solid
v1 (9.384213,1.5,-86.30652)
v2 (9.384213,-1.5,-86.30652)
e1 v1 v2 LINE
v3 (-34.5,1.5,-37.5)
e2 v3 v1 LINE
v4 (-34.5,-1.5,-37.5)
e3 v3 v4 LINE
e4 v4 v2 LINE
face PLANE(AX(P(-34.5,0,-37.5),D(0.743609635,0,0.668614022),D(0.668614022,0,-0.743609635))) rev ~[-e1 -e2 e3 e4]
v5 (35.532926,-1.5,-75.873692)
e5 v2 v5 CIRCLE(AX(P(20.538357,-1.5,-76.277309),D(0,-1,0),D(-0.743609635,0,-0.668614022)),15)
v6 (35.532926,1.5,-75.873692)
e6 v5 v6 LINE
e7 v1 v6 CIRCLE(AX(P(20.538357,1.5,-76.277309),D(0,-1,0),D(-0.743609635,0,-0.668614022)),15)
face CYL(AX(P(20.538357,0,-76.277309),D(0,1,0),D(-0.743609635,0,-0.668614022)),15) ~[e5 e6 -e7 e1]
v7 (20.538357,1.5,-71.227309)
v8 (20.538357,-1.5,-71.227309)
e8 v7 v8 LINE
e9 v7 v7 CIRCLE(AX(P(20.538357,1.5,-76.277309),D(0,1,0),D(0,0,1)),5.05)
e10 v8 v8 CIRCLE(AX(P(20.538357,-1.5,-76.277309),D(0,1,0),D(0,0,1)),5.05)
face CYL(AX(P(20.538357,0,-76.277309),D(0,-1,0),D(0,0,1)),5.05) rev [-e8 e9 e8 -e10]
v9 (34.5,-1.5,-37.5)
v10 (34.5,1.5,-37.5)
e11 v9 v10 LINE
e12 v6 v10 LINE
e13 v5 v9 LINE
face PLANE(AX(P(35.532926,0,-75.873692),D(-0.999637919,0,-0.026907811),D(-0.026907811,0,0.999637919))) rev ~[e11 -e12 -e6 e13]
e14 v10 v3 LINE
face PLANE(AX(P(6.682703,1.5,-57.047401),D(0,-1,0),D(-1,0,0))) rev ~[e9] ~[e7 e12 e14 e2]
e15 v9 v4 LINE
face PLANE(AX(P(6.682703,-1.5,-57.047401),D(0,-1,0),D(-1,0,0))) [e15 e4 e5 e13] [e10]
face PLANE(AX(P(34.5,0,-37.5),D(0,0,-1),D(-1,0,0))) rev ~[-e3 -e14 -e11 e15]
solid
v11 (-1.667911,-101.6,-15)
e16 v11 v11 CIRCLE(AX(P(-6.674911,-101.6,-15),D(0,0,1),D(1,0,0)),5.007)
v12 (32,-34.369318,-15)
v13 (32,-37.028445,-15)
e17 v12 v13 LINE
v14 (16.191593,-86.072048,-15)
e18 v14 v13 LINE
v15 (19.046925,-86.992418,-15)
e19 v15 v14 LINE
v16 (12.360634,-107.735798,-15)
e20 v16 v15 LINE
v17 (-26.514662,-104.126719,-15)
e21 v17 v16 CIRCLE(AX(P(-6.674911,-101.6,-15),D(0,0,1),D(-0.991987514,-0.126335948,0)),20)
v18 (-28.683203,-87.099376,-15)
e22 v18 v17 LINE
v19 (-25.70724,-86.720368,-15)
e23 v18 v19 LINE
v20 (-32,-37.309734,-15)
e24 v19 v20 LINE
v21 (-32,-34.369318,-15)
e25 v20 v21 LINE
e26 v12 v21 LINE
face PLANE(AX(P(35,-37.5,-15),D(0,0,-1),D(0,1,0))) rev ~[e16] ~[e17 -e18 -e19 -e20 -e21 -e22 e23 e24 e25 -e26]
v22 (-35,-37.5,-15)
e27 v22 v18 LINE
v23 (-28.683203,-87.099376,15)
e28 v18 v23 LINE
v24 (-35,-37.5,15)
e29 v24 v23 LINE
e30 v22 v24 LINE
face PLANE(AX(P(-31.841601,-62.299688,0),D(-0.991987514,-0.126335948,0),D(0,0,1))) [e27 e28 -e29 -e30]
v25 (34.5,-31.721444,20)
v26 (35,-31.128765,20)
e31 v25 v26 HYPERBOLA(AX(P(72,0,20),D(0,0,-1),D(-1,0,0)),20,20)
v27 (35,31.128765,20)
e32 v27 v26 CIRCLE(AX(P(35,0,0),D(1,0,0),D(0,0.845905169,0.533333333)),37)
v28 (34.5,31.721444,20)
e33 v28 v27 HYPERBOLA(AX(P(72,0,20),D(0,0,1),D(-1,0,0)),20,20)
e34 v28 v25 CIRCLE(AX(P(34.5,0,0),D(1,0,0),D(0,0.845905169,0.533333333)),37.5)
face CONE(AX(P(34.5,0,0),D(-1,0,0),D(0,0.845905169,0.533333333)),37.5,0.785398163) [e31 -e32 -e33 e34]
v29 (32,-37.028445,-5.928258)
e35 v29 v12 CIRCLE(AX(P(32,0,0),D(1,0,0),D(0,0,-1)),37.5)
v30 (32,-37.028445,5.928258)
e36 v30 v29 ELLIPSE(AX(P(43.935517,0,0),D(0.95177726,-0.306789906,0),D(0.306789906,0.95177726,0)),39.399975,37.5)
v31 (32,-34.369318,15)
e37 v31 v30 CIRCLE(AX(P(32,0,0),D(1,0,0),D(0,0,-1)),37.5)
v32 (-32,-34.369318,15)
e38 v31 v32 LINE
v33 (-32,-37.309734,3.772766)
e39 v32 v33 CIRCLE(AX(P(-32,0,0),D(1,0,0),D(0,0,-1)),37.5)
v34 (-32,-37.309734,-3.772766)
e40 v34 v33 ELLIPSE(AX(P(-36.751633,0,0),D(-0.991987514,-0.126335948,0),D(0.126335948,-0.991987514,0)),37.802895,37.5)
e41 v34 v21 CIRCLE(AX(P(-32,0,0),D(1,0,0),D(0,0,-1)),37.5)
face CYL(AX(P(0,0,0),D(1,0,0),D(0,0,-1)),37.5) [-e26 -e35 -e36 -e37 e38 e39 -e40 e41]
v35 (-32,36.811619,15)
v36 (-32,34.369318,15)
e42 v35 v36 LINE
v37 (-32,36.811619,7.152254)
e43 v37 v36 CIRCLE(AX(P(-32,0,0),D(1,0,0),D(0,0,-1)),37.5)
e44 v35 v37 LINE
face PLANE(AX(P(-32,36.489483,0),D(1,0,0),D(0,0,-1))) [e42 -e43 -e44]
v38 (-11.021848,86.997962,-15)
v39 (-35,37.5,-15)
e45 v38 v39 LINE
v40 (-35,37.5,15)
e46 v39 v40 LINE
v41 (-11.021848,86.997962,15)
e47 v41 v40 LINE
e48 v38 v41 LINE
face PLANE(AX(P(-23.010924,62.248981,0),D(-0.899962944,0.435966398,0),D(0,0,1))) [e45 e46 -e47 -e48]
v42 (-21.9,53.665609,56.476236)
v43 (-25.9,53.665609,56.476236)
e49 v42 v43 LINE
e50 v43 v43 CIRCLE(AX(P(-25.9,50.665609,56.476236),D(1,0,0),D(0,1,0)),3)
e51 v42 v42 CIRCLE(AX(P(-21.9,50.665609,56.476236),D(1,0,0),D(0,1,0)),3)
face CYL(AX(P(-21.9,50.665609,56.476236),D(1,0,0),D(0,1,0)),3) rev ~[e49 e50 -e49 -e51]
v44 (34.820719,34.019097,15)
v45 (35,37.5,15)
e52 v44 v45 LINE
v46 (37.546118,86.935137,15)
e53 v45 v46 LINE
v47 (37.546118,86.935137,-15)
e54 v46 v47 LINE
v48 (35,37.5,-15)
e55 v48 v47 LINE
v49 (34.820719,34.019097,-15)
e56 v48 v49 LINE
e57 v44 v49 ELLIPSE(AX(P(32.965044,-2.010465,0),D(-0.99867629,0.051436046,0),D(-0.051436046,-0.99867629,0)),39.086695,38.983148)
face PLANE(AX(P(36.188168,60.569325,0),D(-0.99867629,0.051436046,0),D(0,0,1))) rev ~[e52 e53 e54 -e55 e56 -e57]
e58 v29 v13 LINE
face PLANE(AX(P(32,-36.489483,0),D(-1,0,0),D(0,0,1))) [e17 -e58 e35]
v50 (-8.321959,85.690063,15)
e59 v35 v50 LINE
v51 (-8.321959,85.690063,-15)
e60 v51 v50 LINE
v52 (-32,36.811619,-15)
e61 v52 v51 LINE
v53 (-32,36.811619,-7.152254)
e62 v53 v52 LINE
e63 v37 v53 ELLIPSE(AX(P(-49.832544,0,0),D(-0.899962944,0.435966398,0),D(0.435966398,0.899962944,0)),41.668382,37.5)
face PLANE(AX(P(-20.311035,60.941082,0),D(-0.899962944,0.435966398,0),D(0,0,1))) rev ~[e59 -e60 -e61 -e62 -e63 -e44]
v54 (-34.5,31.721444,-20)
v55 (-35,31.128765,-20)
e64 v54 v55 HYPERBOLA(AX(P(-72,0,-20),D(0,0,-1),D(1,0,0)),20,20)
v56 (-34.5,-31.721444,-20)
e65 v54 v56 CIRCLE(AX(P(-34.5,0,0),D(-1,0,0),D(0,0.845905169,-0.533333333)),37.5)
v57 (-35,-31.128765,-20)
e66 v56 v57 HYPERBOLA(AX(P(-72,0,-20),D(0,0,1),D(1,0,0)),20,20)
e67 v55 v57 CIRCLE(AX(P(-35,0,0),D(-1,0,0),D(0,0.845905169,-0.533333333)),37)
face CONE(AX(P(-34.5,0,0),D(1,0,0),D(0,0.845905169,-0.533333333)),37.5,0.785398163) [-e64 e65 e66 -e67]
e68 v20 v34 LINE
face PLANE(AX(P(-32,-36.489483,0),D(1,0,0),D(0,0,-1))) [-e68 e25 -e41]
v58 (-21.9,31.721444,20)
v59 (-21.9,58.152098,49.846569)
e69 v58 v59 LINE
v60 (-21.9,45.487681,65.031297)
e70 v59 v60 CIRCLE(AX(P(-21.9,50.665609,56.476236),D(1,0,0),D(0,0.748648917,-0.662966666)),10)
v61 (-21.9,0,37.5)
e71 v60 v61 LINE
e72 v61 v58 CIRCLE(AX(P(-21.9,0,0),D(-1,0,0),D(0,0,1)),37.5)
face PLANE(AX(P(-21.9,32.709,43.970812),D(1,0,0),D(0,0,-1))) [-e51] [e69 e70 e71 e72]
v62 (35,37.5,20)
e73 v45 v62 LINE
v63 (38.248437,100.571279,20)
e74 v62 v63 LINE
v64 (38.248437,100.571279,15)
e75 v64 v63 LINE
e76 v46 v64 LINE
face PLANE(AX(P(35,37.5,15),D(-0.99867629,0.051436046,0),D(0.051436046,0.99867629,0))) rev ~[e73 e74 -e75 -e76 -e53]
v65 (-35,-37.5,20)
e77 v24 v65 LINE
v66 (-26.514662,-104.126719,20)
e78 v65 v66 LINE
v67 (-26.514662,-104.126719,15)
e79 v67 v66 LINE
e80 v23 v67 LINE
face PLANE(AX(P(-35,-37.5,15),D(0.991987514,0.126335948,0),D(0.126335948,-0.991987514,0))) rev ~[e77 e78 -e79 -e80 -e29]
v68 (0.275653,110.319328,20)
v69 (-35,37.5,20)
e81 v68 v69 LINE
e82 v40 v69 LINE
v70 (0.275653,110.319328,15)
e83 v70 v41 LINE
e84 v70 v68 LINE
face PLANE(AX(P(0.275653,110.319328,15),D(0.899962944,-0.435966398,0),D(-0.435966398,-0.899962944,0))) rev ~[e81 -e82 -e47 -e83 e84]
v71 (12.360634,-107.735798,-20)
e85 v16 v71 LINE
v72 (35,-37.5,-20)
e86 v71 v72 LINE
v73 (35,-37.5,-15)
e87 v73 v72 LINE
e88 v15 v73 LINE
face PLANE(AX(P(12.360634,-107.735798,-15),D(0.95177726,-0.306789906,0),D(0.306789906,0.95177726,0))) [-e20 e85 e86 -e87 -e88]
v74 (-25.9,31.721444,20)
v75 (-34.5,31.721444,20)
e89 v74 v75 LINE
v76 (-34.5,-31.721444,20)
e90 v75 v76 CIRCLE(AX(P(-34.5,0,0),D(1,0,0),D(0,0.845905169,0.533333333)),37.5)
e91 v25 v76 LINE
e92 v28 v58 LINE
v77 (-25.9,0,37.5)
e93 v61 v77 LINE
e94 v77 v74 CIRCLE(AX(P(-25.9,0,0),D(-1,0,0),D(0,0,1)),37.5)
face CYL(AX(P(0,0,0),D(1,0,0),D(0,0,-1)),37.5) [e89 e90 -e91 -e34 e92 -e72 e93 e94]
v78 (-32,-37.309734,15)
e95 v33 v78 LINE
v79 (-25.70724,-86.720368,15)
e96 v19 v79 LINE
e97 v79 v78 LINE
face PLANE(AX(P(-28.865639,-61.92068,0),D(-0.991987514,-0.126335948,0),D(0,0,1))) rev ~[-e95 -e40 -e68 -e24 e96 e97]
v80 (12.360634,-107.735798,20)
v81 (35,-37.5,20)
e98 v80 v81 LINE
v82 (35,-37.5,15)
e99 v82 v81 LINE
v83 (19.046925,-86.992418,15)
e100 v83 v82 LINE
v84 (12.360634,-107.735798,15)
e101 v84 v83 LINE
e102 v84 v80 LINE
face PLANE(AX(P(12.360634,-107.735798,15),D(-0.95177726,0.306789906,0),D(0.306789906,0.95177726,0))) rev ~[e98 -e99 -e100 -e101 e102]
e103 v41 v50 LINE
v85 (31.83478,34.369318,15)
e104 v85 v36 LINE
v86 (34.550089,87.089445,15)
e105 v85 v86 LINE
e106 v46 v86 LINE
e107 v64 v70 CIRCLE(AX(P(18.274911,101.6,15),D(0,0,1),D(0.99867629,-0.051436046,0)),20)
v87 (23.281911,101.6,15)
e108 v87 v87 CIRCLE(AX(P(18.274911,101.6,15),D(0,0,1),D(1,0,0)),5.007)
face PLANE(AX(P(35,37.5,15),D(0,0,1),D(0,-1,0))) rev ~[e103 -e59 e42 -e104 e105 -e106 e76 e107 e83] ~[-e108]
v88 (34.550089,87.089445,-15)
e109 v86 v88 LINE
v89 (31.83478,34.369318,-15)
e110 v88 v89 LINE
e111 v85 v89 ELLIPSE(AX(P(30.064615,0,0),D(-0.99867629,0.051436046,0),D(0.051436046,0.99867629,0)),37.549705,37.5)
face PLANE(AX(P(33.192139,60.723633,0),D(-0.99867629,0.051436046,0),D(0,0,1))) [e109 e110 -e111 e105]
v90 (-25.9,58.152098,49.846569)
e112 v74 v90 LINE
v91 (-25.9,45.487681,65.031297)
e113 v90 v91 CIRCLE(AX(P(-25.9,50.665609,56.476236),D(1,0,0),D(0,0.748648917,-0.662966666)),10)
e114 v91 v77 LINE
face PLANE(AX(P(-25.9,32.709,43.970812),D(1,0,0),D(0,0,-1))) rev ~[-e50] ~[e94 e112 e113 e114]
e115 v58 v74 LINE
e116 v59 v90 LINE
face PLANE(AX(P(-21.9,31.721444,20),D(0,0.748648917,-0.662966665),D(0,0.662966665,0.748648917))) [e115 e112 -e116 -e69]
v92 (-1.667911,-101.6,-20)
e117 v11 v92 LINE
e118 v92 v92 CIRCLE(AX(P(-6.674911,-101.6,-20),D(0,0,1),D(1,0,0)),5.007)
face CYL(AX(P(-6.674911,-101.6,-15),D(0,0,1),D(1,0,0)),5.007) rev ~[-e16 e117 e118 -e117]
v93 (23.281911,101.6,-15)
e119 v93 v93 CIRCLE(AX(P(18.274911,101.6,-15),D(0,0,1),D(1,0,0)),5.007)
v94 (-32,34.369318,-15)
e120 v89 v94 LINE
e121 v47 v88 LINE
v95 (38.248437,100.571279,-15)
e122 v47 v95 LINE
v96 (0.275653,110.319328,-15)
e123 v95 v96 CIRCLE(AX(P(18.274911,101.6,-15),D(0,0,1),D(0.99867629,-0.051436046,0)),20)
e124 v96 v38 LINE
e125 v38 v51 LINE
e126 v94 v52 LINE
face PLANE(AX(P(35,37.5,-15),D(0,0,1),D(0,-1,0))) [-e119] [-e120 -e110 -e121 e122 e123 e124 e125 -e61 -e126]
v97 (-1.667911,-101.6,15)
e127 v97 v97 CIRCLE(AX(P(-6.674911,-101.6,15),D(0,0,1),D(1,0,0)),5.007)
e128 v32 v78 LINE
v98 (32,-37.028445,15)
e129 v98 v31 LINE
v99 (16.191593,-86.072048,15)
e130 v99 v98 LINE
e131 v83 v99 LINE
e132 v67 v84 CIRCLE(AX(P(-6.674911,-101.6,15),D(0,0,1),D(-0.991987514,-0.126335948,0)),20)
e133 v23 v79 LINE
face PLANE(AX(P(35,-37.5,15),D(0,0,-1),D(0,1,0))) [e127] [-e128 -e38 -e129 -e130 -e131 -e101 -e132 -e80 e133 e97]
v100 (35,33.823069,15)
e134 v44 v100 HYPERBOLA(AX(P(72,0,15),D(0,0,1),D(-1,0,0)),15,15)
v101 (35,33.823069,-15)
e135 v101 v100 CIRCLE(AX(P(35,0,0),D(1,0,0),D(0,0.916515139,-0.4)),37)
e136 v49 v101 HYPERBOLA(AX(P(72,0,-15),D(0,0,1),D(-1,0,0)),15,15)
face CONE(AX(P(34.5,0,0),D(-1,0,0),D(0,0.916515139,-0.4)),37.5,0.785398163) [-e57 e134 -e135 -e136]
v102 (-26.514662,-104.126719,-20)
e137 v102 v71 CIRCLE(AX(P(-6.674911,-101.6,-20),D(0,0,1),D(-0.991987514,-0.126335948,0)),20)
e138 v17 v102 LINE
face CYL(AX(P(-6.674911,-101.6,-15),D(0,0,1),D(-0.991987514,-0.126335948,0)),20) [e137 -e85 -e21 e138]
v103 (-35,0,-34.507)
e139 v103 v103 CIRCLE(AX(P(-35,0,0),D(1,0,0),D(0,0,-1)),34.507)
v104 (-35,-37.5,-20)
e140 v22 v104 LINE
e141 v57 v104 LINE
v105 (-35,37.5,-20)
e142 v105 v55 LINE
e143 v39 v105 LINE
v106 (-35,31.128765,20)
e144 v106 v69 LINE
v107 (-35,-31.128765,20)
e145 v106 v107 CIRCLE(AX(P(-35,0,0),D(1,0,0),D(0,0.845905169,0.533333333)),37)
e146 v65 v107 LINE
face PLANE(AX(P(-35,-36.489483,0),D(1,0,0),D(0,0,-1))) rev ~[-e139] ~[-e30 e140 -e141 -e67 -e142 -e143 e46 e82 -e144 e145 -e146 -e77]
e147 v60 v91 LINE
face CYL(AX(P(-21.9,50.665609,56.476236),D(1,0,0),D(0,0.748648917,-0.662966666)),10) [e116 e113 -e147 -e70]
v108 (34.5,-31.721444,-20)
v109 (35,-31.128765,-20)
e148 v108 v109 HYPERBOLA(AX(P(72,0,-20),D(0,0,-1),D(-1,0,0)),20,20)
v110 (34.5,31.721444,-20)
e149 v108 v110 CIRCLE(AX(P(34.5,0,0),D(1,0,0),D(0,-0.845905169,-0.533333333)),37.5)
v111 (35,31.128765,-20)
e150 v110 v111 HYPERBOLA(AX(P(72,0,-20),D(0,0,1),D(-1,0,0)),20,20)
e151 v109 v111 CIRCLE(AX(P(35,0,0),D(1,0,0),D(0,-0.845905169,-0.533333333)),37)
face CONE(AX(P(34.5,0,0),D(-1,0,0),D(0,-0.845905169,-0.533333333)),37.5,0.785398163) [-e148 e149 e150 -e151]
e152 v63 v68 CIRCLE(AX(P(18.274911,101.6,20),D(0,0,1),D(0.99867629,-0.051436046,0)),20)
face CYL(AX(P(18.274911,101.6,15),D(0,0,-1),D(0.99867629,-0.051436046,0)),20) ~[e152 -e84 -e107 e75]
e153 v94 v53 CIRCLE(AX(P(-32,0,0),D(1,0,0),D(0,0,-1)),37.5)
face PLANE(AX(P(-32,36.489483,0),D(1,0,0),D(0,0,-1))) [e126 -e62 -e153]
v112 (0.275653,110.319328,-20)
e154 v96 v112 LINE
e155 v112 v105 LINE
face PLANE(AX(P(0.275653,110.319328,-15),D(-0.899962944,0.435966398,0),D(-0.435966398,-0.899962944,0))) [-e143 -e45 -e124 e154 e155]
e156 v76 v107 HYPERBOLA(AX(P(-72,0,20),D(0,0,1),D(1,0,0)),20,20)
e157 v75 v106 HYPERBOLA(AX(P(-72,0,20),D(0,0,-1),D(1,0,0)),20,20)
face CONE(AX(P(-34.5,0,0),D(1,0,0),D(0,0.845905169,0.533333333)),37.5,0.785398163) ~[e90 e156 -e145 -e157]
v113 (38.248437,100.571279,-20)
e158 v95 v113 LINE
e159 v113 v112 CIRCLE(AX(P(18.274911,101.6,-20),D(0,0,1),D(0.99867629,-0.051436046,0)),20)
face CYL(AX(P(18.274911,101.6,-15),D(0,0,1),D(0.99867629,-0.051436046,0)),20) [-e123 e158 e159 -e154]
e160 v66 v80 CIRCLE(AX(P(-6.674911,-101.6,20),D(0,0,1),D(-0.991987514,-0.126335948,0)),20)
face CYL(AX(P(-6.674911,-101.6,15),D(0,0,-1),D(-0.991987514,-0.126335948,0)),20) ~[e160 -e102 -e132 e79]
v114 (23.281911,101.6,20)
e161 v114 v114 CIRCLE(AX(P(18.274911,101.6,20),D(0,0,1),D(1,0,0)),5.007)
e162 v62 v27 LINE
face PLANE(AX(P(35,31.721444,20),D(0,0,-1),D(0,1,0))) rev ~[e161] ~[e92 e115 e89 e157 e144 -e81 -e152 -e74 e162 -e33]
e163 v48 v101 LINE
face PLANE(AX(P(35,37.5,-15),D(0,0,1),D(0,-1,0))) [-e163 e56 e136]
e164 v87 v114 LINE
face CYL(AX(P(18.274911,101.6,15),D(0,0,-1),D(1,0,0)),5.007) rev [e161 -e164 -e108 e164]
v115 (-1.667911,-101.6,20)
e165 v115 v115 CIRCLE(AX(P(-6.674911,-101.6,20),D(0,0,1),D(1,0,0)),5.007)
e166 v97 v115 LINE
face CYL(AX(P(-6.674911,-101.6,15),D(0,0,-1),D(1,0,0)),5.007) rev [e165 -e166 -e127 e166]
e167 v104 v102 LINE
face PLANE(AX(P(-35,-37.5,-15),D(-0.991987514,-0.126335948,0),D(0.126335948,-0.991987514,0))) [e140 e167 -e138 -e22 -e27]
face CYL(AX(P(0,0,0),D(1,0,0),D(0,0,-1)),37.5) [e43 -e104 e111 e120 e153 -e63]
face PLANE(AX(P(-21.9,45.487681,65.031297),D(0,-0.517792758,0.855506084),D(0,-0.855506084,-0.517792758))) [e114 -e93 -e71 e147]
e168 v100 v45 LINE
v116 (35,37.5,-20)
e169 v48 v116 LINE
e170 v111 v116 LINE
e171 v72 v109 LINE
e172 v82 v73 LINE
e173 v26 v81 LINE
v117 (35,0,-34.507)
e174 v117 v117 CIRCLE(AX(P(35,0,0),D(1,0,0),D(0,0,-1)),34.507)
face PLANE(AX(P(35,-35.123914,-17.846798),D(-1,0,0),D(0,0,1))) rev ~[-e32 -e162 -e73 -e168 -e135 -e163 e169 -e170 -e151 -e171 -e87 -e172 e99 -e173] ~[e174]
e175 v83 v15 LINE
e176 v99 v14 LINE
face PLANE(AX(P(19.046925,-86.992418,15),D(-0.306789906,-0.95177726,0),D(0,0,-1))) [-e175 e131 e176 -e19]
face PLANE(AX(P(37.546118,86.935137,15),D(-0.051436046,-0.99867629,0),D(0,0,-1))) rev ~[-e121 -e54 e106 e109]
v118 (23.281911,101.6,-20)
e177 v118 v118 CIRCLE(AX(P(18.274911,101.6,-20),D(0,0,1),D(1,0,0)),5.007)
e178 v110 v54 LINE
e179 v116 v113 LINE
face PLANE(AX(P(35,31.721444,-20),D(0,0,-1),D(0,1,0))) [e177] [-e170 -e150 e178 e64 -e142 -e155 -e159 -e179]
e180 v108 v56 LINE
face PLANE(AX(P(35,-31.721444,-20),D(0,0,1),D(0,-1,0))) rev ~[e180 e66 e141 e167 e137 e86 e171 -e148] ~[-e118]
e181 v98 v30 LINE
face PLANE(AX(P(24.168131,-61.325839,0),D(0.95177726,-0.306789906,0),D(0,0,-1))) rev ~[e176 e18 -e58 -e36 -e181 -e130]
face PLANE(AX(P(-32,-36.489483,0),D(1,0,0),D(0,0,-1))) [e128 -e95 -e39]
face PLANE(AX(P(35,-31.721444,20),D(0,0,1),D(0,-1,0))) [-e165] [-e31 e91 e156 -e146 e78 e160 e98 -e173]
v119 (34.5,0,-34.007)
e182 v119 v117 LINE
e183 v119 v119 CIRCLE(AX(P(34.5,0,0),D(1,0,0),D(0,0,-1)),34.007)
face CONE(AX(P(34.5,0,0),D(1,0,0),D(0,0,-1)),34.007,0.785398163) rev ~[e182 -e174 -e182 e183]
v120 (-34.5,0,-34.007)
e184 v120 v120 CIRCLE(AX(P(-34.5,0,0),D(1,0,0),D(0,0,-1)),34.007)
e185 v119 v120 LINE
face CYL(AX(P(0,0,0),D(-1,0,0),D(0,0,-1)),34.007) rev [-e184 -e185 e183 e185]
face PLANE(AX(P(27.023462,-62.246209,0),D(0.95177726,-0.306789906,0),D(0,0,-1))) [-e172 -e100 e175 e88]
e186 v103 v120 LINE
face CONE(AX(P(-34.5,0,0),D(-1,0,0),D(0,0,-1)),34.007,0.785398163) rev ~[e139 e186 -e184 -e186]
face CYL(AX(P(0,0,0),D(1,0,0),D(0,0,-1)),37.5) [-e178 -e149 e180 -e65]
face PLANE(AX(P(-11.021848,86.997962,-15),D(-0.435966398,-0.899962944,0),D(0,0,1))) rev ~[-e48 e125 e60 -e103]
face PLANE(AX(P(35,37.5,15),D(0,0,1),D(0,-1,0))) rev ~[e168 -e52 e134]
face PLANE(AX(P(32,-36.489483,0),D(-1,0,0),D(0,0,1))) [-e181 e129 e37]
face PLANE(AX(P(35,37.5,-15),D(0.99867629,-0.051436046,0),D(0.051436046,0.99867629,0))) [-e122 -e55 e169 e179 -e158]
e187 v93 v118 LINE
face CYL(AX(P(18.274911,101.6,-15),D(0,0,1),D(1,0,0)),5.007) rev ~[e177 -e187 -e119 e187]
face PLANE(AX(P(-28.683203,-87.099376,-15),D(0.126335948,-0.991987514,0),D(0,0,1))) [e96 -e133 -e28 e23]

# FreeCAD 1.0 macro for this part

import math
import FreeCAD as App
import Part
import Sketcher
Q = App.Units.Quantity


def edges_at(feature, points):
    """Names of the edges that pass closest to the given points."""
    edges = feature.Shape.Edges
    near = lambda p: min(range(len(edges)), key=lambda i: edges[i].distToShape(Part.Vertex(*p))[0])
    return sorted({f"Edge{near(p) + 1}" for p in points})

doc = App.newDocument("Part")
params = doc.addObject("Spreadsheet::Sheet", "Params")
for row, (alias, value) in enumerate([
    ("sketch1_diameter", "75 mm"),
    ("pad1_length", "70 mm"),
    ("sketch2_radius", "20 mm"),
    ("sketch2_width", "70 mm"),
    ("pad2_length", "5 mm"),
    ("sketch3_radius", "20 mm"),
    ("sketch3_width", "70 mm"),
    ("pad3_length", "5 mm"),
    ("sketch4_radius", "20 mm"),
    ("sketch4_width", "70 mm"),
    ("pad4_length", "5 mm"),
    ("sketch5_radius", "20 mm"),
    ("sketch5_width", "70 mm"),
    ("pad5_length", "5 mm"),
    ("sketch6_radius", "37.5 mm"),
    ("sketch6_height", "5 mm"),
    ("pad6_length", "70 mm"),
    ("chamfer_size", "0.5 mm"),
    ("chamfer2_size", "0.5 mm"),
    ("pad7_length", "3 mm"),
    ("sketch8_width", "30 mm"),
    ("sketch8_height", "55 mm"),
    ("pad8_length", "3 mm"),
    ("sketch9_radius", "37 mm"),
    ("sketch9_height", "30 mm"),
    ("pad9_length", "3 mm"),
    ("sketch10_width", "30 mm"),
    ("sketch10_height", "50 mm"),
    ("pad10_length", "3 mm"),
    ("sketch11_radius", "37 mm"),
    ("sketch11_height", "30 mm"),
    ("pad11_length", "3 mm"),
    ("sketch12_width", "30 mm"),
    ("sketch12_height", "52 mm"),
    ("pad12_length", "3 mm"),
    ("sketch13_radius", "37 mm"),
    ("sketch13_height", "30 mm"),
    ("pad13_length", "3 mm"),
    ("sketch14_diameter", "6 mm"),
    ("sketch14_radius", "10 mm"),
    ("sketch14_radius2", "37.5 mm"),
    ("pad14_length", "4 mm"),
    ("sketch15_radius", "15 mm"),
    ("sketch15_diameter", "10.1 mm"),
    ("sketch15_width", "69 mm"),
    ("pad15_length", "3 mm"),
], start=1):
    params.set(f"A{row}", alias)
    params.set(f"B{row}", "=" + value)
    params.setAlias(f"B{row}", alias)

body = doc.addObject("PartDesign::Body", "Body")

sketch1 = doc.addObject("Sketcher::SketchObject", "Sketch")
body.addObject(sketch1)
sketch1.AttachmentSupport = (doc.YZ_Plane, [""])
sketch1.MapMode = "FlatFace"
sketch1.addGeometry(Part.Circle(App.Vector(0, 0, 0), App.Vector(0, 0, 1), 38), False)
sketch1.addGeometry(Part.Circle(App.Vector(0, 0, 0), App.Vector(0, 0, 1), 34), False)
sketch1.addConstraint(Sketcher.Constraint("Coincident", 0, 3, -1, 1))
sketch1.addConstraint(Sketcher.Constraint("Coincident", 1, 3, -1, 1))
sketch1.addConstraint(Sketcher.Constraint("Diameter", 0, Q("75 mm")))
sketch1.addConstraint(Sketcher.Constraint("Diameter", 1, Q("68.014 mm")))
sketch1.setExpression("Constraints[2]", "Params.sketch1_diameter")
pad1 = doc.addObject("PartDesign::Pad", "Pad")
body.addObject(pad1)
pad1.Profile = sketch1
pad1.setExpression("Length", "Params.pad1_length")
pad1.Midplane = True
body2 = doc.addObject("PartDesign::Body", "Body001")

sketch2 = doc.addObject("Sketcher::SketchObject", "Sketch001")
body2.addObject(sketch2)
sketch2.AttachmentSupport = (doc.getObject("XY_Plane001"), [""])
sketch2.MapMode = "FlatFace"
sketch2.AttachmentOffset = App.Placement(App.Vector(0, 0, 15), App.Rotation())
sketch2.addGeometry(Part.LineSegment(App.Vector(0, 110, 0), App.Vector(-35, 38, 0)), False)
sketch2.addGeometry(Part.LineSegment(App.Vector(-35, 38, 0), App.Vector(35, 38, 0)), False)
sketch2.addGeometry(Part.LineSegment(App.Vector(35, 38, 0), App.Vector(38, 101, 0)), False)
sketch2.addGeometry(Part.ArcOfCircle(Part.Circle(App.Vector(18, 102, 0), App.Vector(0, 0, 1), 20), math.radians(-3), math.radians(154)), False)
sketch2.addGeometry(Part.Circle(App.Vector(18, 102, 0), App.Vector(0, 0, 1), 5), False)
sketch2.addConstraint(Sketcher.Constraint("Coincident", 0, 2, 1, 1))
sketch2.addConstraint(Sketcher.Constraint("Coincident", 1, 2, 2, 1))
sketch2.addConstraint(Sketcher.Constraint("Tangent", 2, 2, 3, 1))
sketch2.addConstraint(Sketcher.Constraint("Tangent", 3, 2, 0, 1))
sketch2.addConstraint(Sketcher.Constraint("Horizontal", 1))
sketch2.addConstraint(Sketcher.Constraint("Coincident", 4, 3, 3, 3))
sketch2.addConstraint(Sketcher.Constraint("Radius", 3, Q("20 mm")))
sketch2.addConstraint(Sketcher.Constraint("DistanceX", 1, 1, 1, 2, Q("70 mm")))
sketch2.addConstraint(Sketcher.Constraint("Diameter", 4, Q("10.014 mm")))
sketch2.addConstraint(Sketcher.Constraint("DistanceX", 0, 2, -1, 1, Q("35 mm")))
sketch2.addConstraint(Sketcher.Constraint("DistanceY", -1, 1, 3, 3, Q("101.6 mm")))
sketch2.addConstraint(Sketcher.Constraint("DistanceY", -1, 1, 0, 2, Q("37.5 mm")))
sketch2.addConstraint(Sketcher.Constraint("DistanceX", -1, 1, 3, 3, Q("18.274911 mm")))
sketch2.setExpression("Constraints[6]", "Params.sketch2_radius")
sketch2.setExpression("Constraints[7]", "Params.sketch2_width")
pad2 = doc.addObject("PartDesign::Pad", "Pad001")
body2.addObject(pad2)
pad2.Profile = sketch2
pad2.setExpression("Length", "Params.pad2_length")
body3 = doc.addObject("PartDesign::Body", "Body002")

sketch3 = doc.addObject("Sketcher::SketchObject", "Sketch002")
body3.addObject(sketch3)
sketch3.AttachmentSupport = (doc.getObject("XY_Plane002"), [""])
sketch3.MapMode = "FlatFace"
sketch3.AttachmentOffset = App.Placement(App.Vector(0, 0, 15), App.Rotation())
sketch3.addGeometry(Part.LineSegment(App.Vector(-35, -38, 0), App.Vector(-27, -104, 0)), False)
sketch3.addGeometry(Part.ArcOfCircle(Part.Circle(App.Vector(-7, -102, 0), App.Vector(0, 0, 1), 20), math.radians(-173), math.radians(-18)), False)
sketch3.addGeometry(Part.LineSegment(App.Vector(12, -108, 0), App.Vector(35, -38, 0)), False)
sketch3.addGeometry(Part.LineSegment(App.Vector(35, -38, 0), App.Vector(-35, -38, 0)), False)
sketch3.addGeometry(Part.Circle(App.Vector(-7, -102, 0), App.Vector(0, 0, 1), 5), False)
sketch3.addConstraint(Sketcher.Constraint("Tangent", 0, 2, 1, 1))
sketch3.addConstraint(Sketcher.Constraint("Tangent", 1, 2, 2, 1))
sketch3.addConstraint(Sketcher.Constraint("Coincident", 2, 2, 3, 1))
sketch3.addConstraint(Sketcher.Constraint("Coincident", 3, 2, 0, 1))
sketch3.addConstraint(Sketcher.Constraint("Horizontal", 3))
sketch3.addConstraint(Sketcher.Constraint("Coincident", 4, 3, 1, 3))
sketch3.addConstraint(Sketcher.Constraint("Radius", 1, Q("20 mm")))
sketch3.addConstraint(Sketcher.Constraint("DistanceX", 3, 2, 3, 1, Q("70 mm")))
sketch3.addConstraint(Sketcher.Constraint("Diameter", 4, Q("10.014 mm")))
sketch3.addConstraint(Sketcher.Constraint("DistanceX", -1, 1, 2, 2, Q("35 mm")))
sketch3.addConstraint(Sketcher.Constraint("DistanceY", 1, 3, -1, 1, Q("101.6 mm")))
sketch3.addConstraint(Sketcher.Constraint("DistanceY", 2, 2, -1, 1, Q("37.5 mm")))
sketch3.addConstraint(Sketcher.Constraint("DistanceY", 1, 2, -1, 1, Q("107.735798 mm")))
sketch3.setExpression("Constraints[6]", "Params.sketch3_radius")
sketch3.setExpression("Constraints[7]", "Params.sketch3_width")
pad3 = doc.addObject("PartDesign::Pad", "Pad002")
body3.addObject(pad3)
pad3.Profile = sketch3
pad3.setExpression("Length", "Params.pad3_length")
body4 = doc.addObject("PartDesign::Body", "Body003")

sketch4 = doc.addObject("Sketcher::SketchObject", "Sketch003")
body4.addObject(sketch4)
sketch4.AttachmentSupport = (doc.getObject("XY_Plane003"), [""])
sketch4.MapMode = "FlatFace"
sketch4.AttachmentOffset = App.Placement(App.Vector(0, 0, -15), App.Rotation())
sketch4.addGeometry(Part.LineSegment(App.Vector(35, -38, 0), App.Vector(-35, -38, 0)), False)
sketch4.addGeometry(Part.LineSegment(App.Vector(-35, -38, 0), App.Vector(-27, -104, 0)), False)
sketch4.addGeometry(Part.ArcOfCircle(Part.Circle(App.Vector(-7, -102, 0), App.Vector(0, 0, 1), 20), math.radians(-173), math.radians(-18)), False)
sketch4.addGeometry(Part.LineSegment(App.Vector(12, -108, 0), App.Vector(35, -38, 0)), False)
sketch4.addGeometry(Part.Circle(App.Vector(-7, -102, 0), App.Vector(0, 0, 1), 5), False)
sketch4.addConstraint(Sketcher.Constraint("Coincident", 0, 2, 1, 1))
sketch4.addConstraint(Sketcher.Constraint("Tangent", 1, 2, 2, 1))
sketch4.addConstraint(Sketcher.Constraint("Tangent", 2, 2, 3, 1))
sketch4.addConstraint(Sketcher.Constraint("Coincident", 3, 2, 0, 1))
sketch4.addConstraint(Sketcher.Constraint("Horizontal", 0))
sketch4.addConstraint(Sketcher.Constraint("Coincident", 4, 3, 2, 3))
sketch4.addConstraint(Sketcher.Constraint("Radius", 2, Q("20 mm")))
sketch4.addConstraint(Sketcher.Constraint("DistanceX", 0, 2, 0, 1, Q("70 mm")))
sketch4.addConstraint(Sketcher.Constraint("Diameter", 4, Q("10.014 mm")))
sketch4.addConstraint(Sketcher.Constraint("DistanceX", 0, 2, -1, 1, Q("35 mm")))
sketch4.addConstraint(Sketcher.Constraint("DistanceY", 2, 3, -1, 1, Q("101.6 mm")))
sketch4.addConstraint(Sketcher.Constraint("DistanceY", 0, 2, -1, 1, Q("37.5 mm")))
sketch4.addConstraint(Sketcher.Constraint("DistanceY", 2, 2, -1, 1, Q("107.735798 mm")))
sketch4.setExpression("Constraints[6]", "Params.sketch4_radius")
sketch4.setExpression("Constraints[7]", "Params.sketch4_width")
pad4 = doc.addObject("PartDesign::Pad", "Pad003")
body4.addObject(pad4)
pad4.Profile = sketch4
pad4.setExpression("Length", "Params.pad4_length")
pad4.Reversed = True
body5 = doc.addObject("PartDesign::Body", "Body004")

sketch5 = doc.addObject("Sketcher::SketchObject", "Sketch004")
body5.addObject(sketch5)
sketch5.AttachmentSupport = (doc.getObject("XY_Plane004"), [""])
sketch5.MapMode = "FlatFace"
sketch5.AttachmentOffset = App.Placement(App.Vector(0, 0, -15), App.Rotation())
sketch5.addGeometry(Part.LineSegment(App.Vector(35, 38, 0), App.Vector(38, 101, 0)), False)
sketch5.addGeometry(Part.ArcOfCircle(Part.Circle(App.Vector(18, 102, 0), App.Vector(0, 0, 1), 20), math.radians(-3), math.radians(154)), False)
sketch5.addGeometry(Part.LineSegment(App.Vector(0, 110, 0), App.Vector(-35, 38, 0)), False)
sketch5.addGeometry(Part.LineSegment(App.Vector(-35, 38, 0), App.Vector(35, 38, 0)), False)
sketch5.addGeometry(Part.Circle(App.Vector(18, 102, 0), App.Vector(0, 0, 1), 5), False)
sketch5.addConstraint(Sketcher.Constraint("Tangent", 0, 2, 1, 1))
sketch5.addConstraint(Sketcher.Constraint("Tangent", 1, 2, 2, 1))
sketch5.addConstraint(Sketcher.Constraint("Coincident", 2, 2, 3, 1))
sketch5.addConstraint(Sketcher.Constraint("Coincident", 3, 2, 0, 1))
sketch5.addConstraint(Sketcher.Constraint("Horizontal", 3))
sketch5.addConstraint(Sketcher.Constraint("Coincident", 4, 3, 1, 3))
sketch5.addConstraint(Sketcher.Constraint("Radius", 1, Q("20 mm")))
sketch5.addConstraint(Sketcher.Constraint("DistanceX", 3, 1, 3, 2, Q("70 mm")))
sketch5.addConstraint(Sketcher.Constraint("Diameter", 4, Q("10.014 mm")))
sketch5.addConstraint(Sketcher.Constraint("DistanceX", 2, 2, -1, 1, Q("35 mm")))
sketch5.addConstraint(Sketcher.Constraint("DistanceY", -1, 1, 1, 3, Q("101.6 mm")))
sketch5.addConstraint(Sketcher.Constraint("DistanceY", -1, 1, 2, 2, Q("37.5 mm")))
sketch5.addConstraint(Sketcher.Constraint("DistanceX", -1, 1, 1, 3, Q("18.274911 mm")))
sketch5.setExpression("Constraints[6]", "Params.sketch5_radius")
sketch5.setExpression("Constraints[7]", "Params.sketch5_width")
pad5 = doc.addObject("PartDesign::Pad", "Pad004")
body5.addObject(pad5)
pad5.Profile = sketch5
pad5.setExpression("Length", "Params.pad5_length")
pad5.Reversed = True
body.AllowCompound = True
doc.recompute()

boolean = doc.addObject("PartDesign::Boolean", "Boolean")
body.addObject(boolean)
boolean.Type = "Fuse"
boolean.addObjects([body2])
doc.recompute()

boolean2 = doc.addObject("PartDesign::Boolean", "Boolean001")
body.addObject(boolean2)
boolean2.Type = "Fuse"
boolean2.addObjects([body3])
doc.recompute()

boolean3 = doc.addObject("PartDesign::Boolean", "Boolean002")
body.addObject(boolean3)
boolean3.Type = "Fuse"
boolean3.addObjects([body4])
doc.recompute()

boolean4 = doc.addObject("PartDesign::Boolean", "Boolean003")
body.addObject(boolean4)
boolean4.Type = "Fuse"
boolean4.addObjects([body5])

sketch6 = doc.addObject("Sketcher::SketchObject", "Sketch005")
body.addObject(sketch6)
sketch6.AttachmentSupport = (doc.YZ_Plane, [""])
sketch6.MapMode = "FlatFace"
sketch6.AttachmentOffset = App.Placement(App.Vector(0, 0, 35), App.Rotation())
sketch6.addGeometry(Part.LineSegment(App.Vector(-37.5, -15, 0), App.Vector(-37.5, -20, 0)), False)
sketch6.addGeometry(Part.LineSegment(App.Vector(-37.5, -20, 0), App.Vector(-31.7, -20, 0)), False)
sketch6.addGeometry(Part.ArcOfCircle(Part.Circle(App.Vector(0, 0, 0), App.Vector(0, 0, 1), 37.5), math.radians(-156.42), math.radians(-147.77)), False)
sketch6.addGeometry(Part.LineSegment(App.Vector(-34.4, -15, 0), App.Vector(-37.5, -15, 0)), False)
sketch6.addGeometry(Part.LineSegment(App.Vector(-37.5, 20, 0), App.Vector(-37.5, 15, 0)), False)
sketch6.addGeometry(Part.LineSegment(App.Vector(-37.5, 15, 0), App.Vector(-34.4, 15, 0)), False)
sketch6.addGeometry(Part.ArcOfCircle(Part.Circle(App.Vector(0, 0, 0), App.Vector(0, 0, 1), 37.5), math.radians(147.77), math.radians(156.42)), False)
sketch6.addGeometry(Part.LineSegment(App.Vector(-31.7, 20, 0), App.Vector(-37.5, 20, 0)), False)
sketch6.addGeometry(Part.LineSegment(App.Vector(37.5, -20, 0), App.Vector(37.5, -15, 0)), False)
sketch6.addGeometry(Part.LineSegment(App.Vector(37.5, -15, 0), App.Vector(34.4, -15, 0)), False)
sketch6.addGeometry(Part.ArcOfCircle(Part.Circle(App.Vector(0, 0, 0), App.Vector(0, 0, 1), 37.5), math.radians(-32.23), math.radians(-23.58)), False)
sketch6.addGeometry(Part.LineSegment(App.Vector(31.7, -20, 0), App.Vector(37.5, -20, 0)), False)
sketch6.addGeometry(Part.LineSegment(App.Vector(37.5, 15, 0), App.Vector(37.5, 20, 0)), False)
sketch6.addGeometry(Part.LineSegment(App.Vector(37.5, 20, 0), App.Vector(31.7, 20, 0)), False)
sketch6.addGeometry(Part.ArcOfCircle(Part.Circle(App.Vector(0, 0, 0), App.Vector(0, 0, 1), 37.5), math.radians(23.58), math.radians(32.23)), False)
sketch6.addGeometry(Part.LineSegment(App.Vector(34.4, 15, 0), App.Vector(37.5, 15, 0)), False)
sketch6.addConstraint(Sketcher.Constraint("Coincident", 0, 2, 1, 1))
sketch6.addConstraint(Sketcher.Constraint("Coincident", 1, 2, 2, 2))
sketch6.addConstraint(Sketcher.Constraint("Coincident", 2, 1, 3, 1))
sketch6.addConstraint(Sketcher.Constraint("Coincident", 3, 2, 0, 1))
sketch6.addConstraint(Sketcher.Constraint("Coincident", 4, 2, 5, 1))
sketch6.addConstraint(Sketcher.Constraint("Coincident", 5, 2, 6, 2))
sketch6.addConstraint(Sketcher.Constraint("Coincident", 6, 1, 7, 1))
sketch6.addConstraint(Sketcher.Constraint("Coincident", 7, 2, 4, 1))
sketch6.addConstraint(Sketcher.Constraint("Coincident", 8, 2, 9, 1))
sketch6.addConstraint(Sketcher.Constraint("Coincident", 9, 2, 10, 2))
sketch6.addConstraint(Sketcher.Constraint("Coincident", 10, 1, 11, 1))
sketch6.addConstraint(Sketcher.Constraint("Coincident", 11, 2, 8, 1))
sketch6.addConstraint(Sketcher.Constraint("Coincident", 12, 2, 13, 1))
sketch6.addConstraint(Sketcher.Constraint("Coincident", 13, 2, 14, 2))
sketch6.addConstraint(Sketcher.Constraint("Coincident", 14, 1, 15, 1))
sketch6.addConstraint(Sketcher.Constraint("Coincident", 15, 2, 12, 1))
sketch6.addConstraint(Sketcher.Constraint("Vertical", 0))
sketch6.addConstraint(Sketcher.Constraint("Horizontal", 1))
sketch6.addConstraint(Sketcher.Constraint("Horizontal", 3))
sketch6.addConstraint(Sketcher.Constraint("Vertical", 4))
sketch6.addConstraint(Sketcher.Constraint("Horizontal", 5))
sketch6.addConstraint(Sketcher.Constraint("Horizontal", 7))
sketch6.addConstraint(Sketcher.Constraint("Vertical", 8))
sketch6.addConstraint(Sketcher.Constraint("Horizontal", 9))
sketch6.addConstraint(Sketcher.Constraint("Horizontal", 11))
sketch6.addConstraint(Sketcher.Constraint("Vertical", 12))
sketch6.addConstraint(Sketcher.Constraint("Horizontal", 13))
sketch6.addConstraint(Sketcher.Constraint("Horizontal", 15))
sketch6.addConstraint(Sketcher.Constraint("Coincident", 2, 3, -1, 1))
sketch6.addConstraint(Sketcher.Constraint("Coincident", 6, 3, -1, 1))
sketch6.addConstraint(Sketcher.Constraint("Coincident", 10, 3, -1, 1))
sketch6.addConstraint(Sketcher.Constraint("Coincident", 14, 3, -1, 1))
sketch6.addConstraint(Sketcher.Constraint("Equal", 2, 6))
sketch6.addConstraint(Sketcher.Constraint("Equal", 6, 10))
sketch6.addConstraint(Sketcher.Constraint("Equal", 10, 14))
sketch6.addConstraint(Sketcher.Constraint("Symmetric", 4, 2, 8, 2, -1, 1))
sketch6.addConstraint(Sketcher.Constraint("Symmetric", 0, 2, 12, 2, -1, 1))
sketch6.addConstraint(Sketcher.Constraint("Symmetric", 3, 2, 8, 2, -2))
sketch6.addConstraint(Sketcher.Constraint("Horizontal", 1, 2, 10, 1))
sketch6.addConstraint(Sketcher.Constraint("Horizontal", 7, 2, 12, 2))
sketch6.addConstraint(Sketcher.Constraint("Horizontal", 5, 2, 14, 1))
sketch6.addConstraint(Sketcher.Constraint("Radius", 2, Q("37.5 mm")))
sketch6.addConstraint(Sketcher.Constraint("DistanceY", 0, 2, 0, 1, Q("5 mm")))
sketch6.addConstraint(Sketcher.Constraint("DistanceY", 0, 2, -1, 1, Q("20 mm")))
sketch6.addConstraint(Sketcher.Constraint("DistanceX", 0, 2, -1, 1, Q("37.5 mm")))
sketch6.setExpression("Constraints[41]", "Params.sketch6_radius")
sketch6.setExpression("Constraints[42]", "Params.sketch6_height")
pad6 = doc.addObject("PartDesign::Pad", "Pad005")
body.addObject(pad6)
pad6.Profile = sketch6
pad6.setExpression("Length", "Params.pad6_length")
pad6.Reversed = True
doc.recompute()

chamfer = doc.addObject("PartDesign::Chamfer", "Chamfer")
body.addObject(chamfer)
chamfer.Base = (pad6, edges_at(pad6, [
    (35, -37.5, 0),
    (35, 37.5, 0),
    (35, 0, 34.007),
    (35, 0, 37.5),
    (35, 0, -37.5),
]))
chamfer.setExpression("Size", "Params.chamfer_size")
doc.recompute()

chamfer2 = doc.addObject("PartDesign::Chamfer", "Chamfer001")
body.addObject(chamfer2)
chamfer2.Base = (chamfer, edges_at(chamfer, [
    (-35, 0, -37.5),
    (-35, -37.5, 0),
    (-35, 37.5, 0),
    (-35, 0, 34.007),
    (-35, 0, 37.5),
]))
chamfer2.setExpression("Size", "Params.chamfer2_size")

sketch7 = doc.addObject("Sketcher::SketchObject", "Sketch006")
body.addObject(sketch7)
sketch7.Placement = App.Placement(App.Vector(32.981103, -1.698666, 0), App.Rotation(App.Vector(0, 0, -1), App.Vector(0.051436046, 0.99867629, 0), App.Vector(0.99867629, -0.051436046, 0), "ZXY"))
sketch7.addGeometry(Part.LineSegment(App.Vector(15, 88.751284, 0), App.Vector(-15, 88.751284, 0)), False)
sketch7.addGeometry(Part.LineSegment(App.Vector(-15, 88.751284, 0), App.Vector(-15, 35.578559, 0)), False)
sketch7.addGeometry(Part.BSplineCurve([App.Vector(15, 35.578559, 0), App.Vector(0, 42.222017, 0), App.Vector(-15, 35.578559, 0)], [3, 3], [1.153374055, 1.988218598], False, 2, [1, 0.914137001, 1], False), False)
sketch7.addGeometry(Part.LineSegment(App.Vector(15, 35.578559, 0), App.Vector(15, 88.751284, 0)), False)
sketch7.addConstraint(Sketcher.Constraint("Block", 2))
sketch7.addConstraint(Sketcher.Constraint("Coincident", 0, 2, 1, 1))
sketch7.addConstraint(Sketcher.Constraint("Coincident", 1, 2, 2, 2))
sketch7.addConstraint(Sketcher.Constraint("Coincident", 2, 1, 3, 1))
sketch7.addConstraint(Sketcher.Constraint("Coincident", 3, 2, 0, 1))
sketch7.addConstraint(Sketcher.Constraint("Horizontal", 0))
sketch7.addConstraint(Sketcher.Constraint("Vertical", 1))
sketch7.addConstraint(Sketcher.Constraint("Vertical", 3))
sketch7.addConstraint(Sketcher.Constraint("DistanceY", 1, 2, 1, 1, Q("53.172726 mm")))
pad7 = doc.addObject("PartDesign::Pad", "Pad006")
body.addObject(pad7)
pad7.Profile = sketch7
pad7.setExpression("Length", "Params.pad7_length")
pad7.Reversed = True

sketch8 = doc.addObject("Sketcher::SketchObject", "Sketch007")
body.addObject(sketch8)
sketch8.Placement = App.Placement(App.Vector(-43.060926, 20.859877, 0), App.Rotation(App.Vector(0, 0, 1), App.Vector(0.435966398, 0.899962944, 0), App.Vector(-0.899962944, 0.435966398, 0), "ZXY"))
sketch8.addGeometry(Part.LineSegment(App.Vector(-15, 73, 0), App.Vector(-15, 18, 0)), False)
sketch8.addGeometry(Part.LineSegment(App.Vector(-15, 18, 0), App.Vector(15, 18, 0)), False)
sketch8.addGeometry(Part.LineSegment(App.Vector(15, 18, 0), App.Vector(15, 73, 0)), False)
sketch8.addGeometry(Part.LineSegment(App.Vector(15, 73, 0), App.Vector(-15, 73, 0)), False)
sketch8.addConstraint(Sketcher.Constraint("Coincident", 0, 2, 1, 1))
sketch8.addConstraint(Sketcher.Constraint("Coincident", 1, 2, 2, 1))
sketch8.addConstraint(Sketcher.Constraint("Coincident", 2, 2, 3, 1))
sketch8.addConstraint(Sketcher.Constraint("Coincident", 3, 2, 0, 1))
sketch8.addConstraint(Sketcher.Constraint("Vertical", 0))
sketch8.addConstraint(Sketcher.Constraint("Horizontal", 1))
sketch8.addConstraint(Sketcher.Constraint("Vertical", 2))
sketch8.addConstraint(Sketcher.Constraint("Horizontal", 3))
sketch8.addConstraint(Sketcher.Constraint("DistanceX", 1, 1, 1, 2, Q("30 mm")))
sketch8.addConstraint(Sketcher.Constraint("DistanceY", 0, 2, 0, 1, Q("55 mm")))
sketch8.addConstraint(Sketcher.Constraint("DistanceX", 0, 2, -1, 1, Q("15 mm")))
sketch8.addConstraint(Sketcher.Constraint("DistanceY", -1, 1, 0, 2, Q("18.489786 mm")))
sketch8.setExpression("Constraints[8]", "Params.sketch8_width")
sketch8.setExpression("Constraints[9]", "Params.sketch8_height")
pad8 = doc.addObject("PartDesign::Pad", "Pad007")
body.addObject(pad8)
pad8.Profile = sketch8
pad8.setExpression("Length", "Params.pad8_length")
pad8.Reversed = True

sketch9 = doc.addObject("Sketcher::SketchObject", "Sketch008")
body.addObject(sketch9)
sketch9.AttachmentSupport = (doc.YZ_Plane, [""])
sketch9.MapMode = "FlatFace"
sketch9.AttachmentOffset = App.Placement(App.Vector(0, 0, -35), App.Rotation())
sketch9.addGeometry(Part.LineSegment(App.Vector(33.8, 15, 0), App.Vector(37.5, 15, 0)), False)
sketch9.addGeometry(Part.LineSegment(App.Vector(37.5, 15, 0), App.Vector(37.5, -15, 0)), False)
sketch9.addGeometry(Part.LineSegment(App.Vector(37.5, -15, 0), App.Vector(33.8, -15, 0)), False)
sketch9.addGeometry(Part.ArcOfCircle(Part.Circle(App.Vector(0, 0, 0), App.Vector(0, 0, 1), 37), math.radians(-24), math.radians(24)), False)
sketch9.addConstraint(Sketcher.Constraint("Coincident", 0, 2, 1, 1))
sketch9.addConstraint(Sketcher.Constraint("Coincident", 1, 2, 2, 1))
sketch9.addConstraint(Sketcher.Constraint("Coincident", 2, 2, 3, 1))
sketch9.addConstraint(Sketcher.Constraint("Coincident", 3, 2, 0, 1))
sketch9.addConstraint(Sketcher.Constraint("Horizontal", 0))
sketch9.addConstraint(Sketcher.Constraint("Vertical", 1))
sketch9.addConstraint(Sketcher.Constraint("Horizontal", 2))
sketch9.addConstraint(Sketcher.Constraint("Coincident", 3, 3, -1, 1))
sketch9.addConstraint(Sketcher.Constraint("Vertical", 2, 2, 3, 2))
sketch9.addConstraint(Sketcher.Constraint("Radius", 3, Q("37 mm")))
sketch9.addConstraint(Sketcher.Constraint("DistanceY", 1, 2, 1, 1, Q("30 mm")))
sketch9.addConstraint(Sketcher.Constraint("DistanceX", -1, 1, 0, 2, Q("37.5 mm")))
sketch9.setExpression("Constraints[9]", "Params.sketch9_radius")
sketch9.setExpression("Constraints[10]", "Params.sketch9_height")
pad9 = doc.addObject("PartDesign::Pad", "Pad008")
body.addObject(pad9)
pad9.Profile = sketch9
pad9.setExpression("Length", "Params.pad9_length")

sketch10 = doc.addObject("Sketcher::SketchObject", "Sketch009")
body.addObject(sketch10)
sketch10.Placement = App.Placement(App.Vector(-39.141011, -4.984858, 0), App.Rotation(App.Vector(0, 0, 1), App.Vector(-0.126335948, 0.991987514, 0), App.Vector(-0.991987514, -0.126335948, 0), "ZXY"))
sketch10.addGeometry(Part.LineSegment(App.Vector(-15, -33, 0), App.Vector(-15, -83, 0)), False)
sketch10.addGeometry(Part.LineSegment(App.Vector(-15, -83, 0), App.Vector(15, -83, 0)), False)
sketch10.addGeometry(Part.LineSegment(App.Vector(15, -83, 0), App.Vector(15, -33, 0)), False)
sketch10.addGeometry(Part.LineSegment(App.Vector(15, -33, 0), App.Vector(-15, -33, 0)), False)
sketch10.addConstraint(Sketcher.Constraint("Coincident", 0, 2, 1, 1))
sketch10.addConstraint(Sketcher.Constraint("Coincident", 1, 2, 2, 1))
sketch10.addConstraint(Sketcher.Constraint("Coincident", 2, 2, 3, 1))
sketch10.addConstraint(Sketcher.Constraint("Coincident", 3, 2, 0, 1))
sketch10.addConstraint(Sketcher.Constraint("Vertical", 0))
sketch10.addConstraint(Sketcher.Constraint("Horizontal", 1))
sketch10.addConstraint(Sketcher.Constraint("Vertical", 2))
sketch10.addConstraint(Sketcher.Constraint("Horizontal", 3))
sketch10.addConstraint(Sketcher.Constraint("DistanceX", 1, 1, 1, 2, Q("30 mm")))
sketch10.addConstraint(Sketcher.Constraint("DistanceY", 0, 2, 0, 1, Q("50 mm")))
sketch10.addConstraint(Sketcher.Constraint("DistanceX", 0, 2, -1, 1, Q("15 mm")))
sketch10.addConstraint(Sketcher.Constraint("DistanceY", 0, 2, -1, 1, Q("82.777774 mm")))
sketch10.setExpression("Constraints[8]", "Params.sketch10_width")
sketch10.setExpression("Constraints[9]", "Params.sketch10_height")
pad10 = doc.addObject("PartDesign::Pad", "Pad009")
body.addObject(pad10)
pad10.Profile = sketch10
pad10.setExpression("Length", "Params.pad10_length")
pad10.Reversed = True

sketch11 = doc.addObject("Sketcher::SketchObject", "Sketch010")
body.addObject(sketch11)
sketch11.AttachmentSupport = (doc.YZ_Plane, [""])
sketch11.MapMode = "FlatFace"
sketch11.AttachmentOffset = App.Placement(App.Vector(0, 0, -35), App.Rotation())
sketch11.addGeometry(Part.LineSegment(App.Vector(-37.5, -15, 0), App.Vector(-37.5, 15, 0)), False)
sketch11.addGeometry(Part.LineSegment(App.Vector(-37.5, 15, 0), App.Vector(-33.8, 15, 0)), False)
sketch11.addGeometry(Part.ArcOfCircle(Part.Circle(App.Vector(0, 0, 0), App.Vector(0, 0, 1), 37), math.radians(156), math.radians(204)), False)
sketch11.addGeometry(Part.LineSegment(App.Vector(-33.8, -15, 0), App.Vector(-37.5, -15, 0)), False)
sketch11.addConstraint(Sketcher.Constraint("Coincident", 0, 2, 1, 1))
sketch11.addConstraint(Sketcher.Constraint("Coincident", 1, 2, 2, 1))
sketch11.addConstraint(Sketcher.Constraint("Coincident", 2, 2, 3, 1))
sketch11.addConstraint(Sketcher.Constraint("Coincident", 3, 2, 0, 1))
sketch11.addConstraint(Sketcher.Constraint("Vertical", 0))
sketch11.addConstraint(Sketcher.Constraint("Horizontal", 1))
sketch11.addConstraint(Sketcher.Constraint("Horizontal", 3))
sketch11.addConstraint(Sketcher.Constraint("Coincident", 2, 3, -1, 1))
sketch11.addConstraint(Sketcher.Constraint("Vertical", 1, 2, 2, 2))
sketch11.addConstraint(Sketcher.Constraint("Radius", 2, Q("37 mm")))
sketch11.addConstraint(Sketcher.Constraint("DistanceY", 0, 1, 0, 2, Q("30 mm")))
sketch11.addConstraint(Sketcher.Constraint("DistanceX", 0, 2, -1, 1, Q("37.5 mm")))
sketch11.setExpression("Constraints[9]", "Params.sketch11_radius")
sketch11.setExpression("Constraints[10]", "Params.sketch11_height")
pad11 = doc.addObject("PartDesign::Pad", "Pad010")
body.addObject(pad11)
pad11.Profile = sketch11
pad11.setExpression("Length", "Params.pad11_length")

sketch12 = doc.addObject("Sketcher::SketchObject", "Sketch011")
body.addObject(sketch12)
sketch12.Placement = App.Placement(App.Vector(42.655635, -13.74935, 0), App.Rotation(App.Vector(0, 0, -1), App.Vector(0.306789906, 0.95177726, 0), App.Vector(0.95177726, -0.306789906, 0), "ZXY"))
sketch12.addGeometry(Part.LineSegment(App.Vector(-15, -25, 0), App.Vector(-15, -77, 0)), False)
sketch12.addGeometry(Part.LineSegment(App.Vector(-15, -77, 0), App.Vector(15, -77, 0)), False)
sketch12.addGeometry(Part.LineSegment(App.Vector(15, -77, 0), App.Vector(15, -25, 0)), False)
sketch12.addGeometry(Part.LineSegment(App.Vector(15, -25, 0), App.Vector(-15, -25, 0)), False)
sketch12.addConstraint(Sketcher.Constraint("Coincident", 0, 2, 1, 1))
sketch12.addConstraint(Sketcher.Constraint("Coincident", 1, 2, 2, 1))
sketch12.addConstraint(Sketcher.Constraint("Coincident", 2, 2, 3, 1))
sketch12.addConstraint(Sketcher.Constraint("Coincident", 3, 2, 0, 1))
sketch12.addConstraint(Sketcher.Constraint("Vertical", 0))
sketch12.addConstraint(Sketcher.Constraint("Horizontal", 1))
sketch12.addConstraint(Sketcher.Constraint("Vertical", 2))
sketch12.addConstraint(Sketcher.Constraint("Horizontal", 3))
sketch12.addConstraint(Sketcher.Constraint("DistanceX", 1, 1, 1, 2, Q("30 mm")))
sketch12.addConstraint(Sketcher.Constraint("DistanceY", 0, 2, 0, 1, Q("52 mm")))
sketch12.addConstraint(Sketcher.Constraint("DistanceX", 0, 2, -1, 1, Q("15 mm")))
sketch12.addConstraint(Sketcher.Constraint("DistanceY", 0, 2, -1, 1, Q("76.954 mm")))
sketch12.setExpression("Constraints[8]", "Params.sketch12_width")
sketch12.setExpression("Constraints[9]", "Params.sketch12_height")
pad12 = doc.addObject("PartDesign::Pad", "Pad011")
body.addObject(pad12)
pad12.Profile = sketch12
pad12.setExpression("Length", "Params.pad12_length")
pad12.Reversed = True

sketch13 = doc.addObject("Sketcher::SketchObject", "Sketch012")
body.addObject(sketch13)
sketch13.AttachmentSupport = (doc.YZ_Plane, [""])
sketch13.MapMode = "FlatFace"
sketch13.AttachmentOffset = App.Placement(App.Vector(0, 0, 35), App.Rotation())
sketch13.addGeometry(Part.LineSegment(App.Vector(-33.8, 15, 0), App.Vector(-37.5, 15, 0)), False)
sketch13.addGeometry(Part.LineSegment(App.Vector(-37.5, 15, 0), App.Vector(-37.5, -15, 0)), False)
sketch13.addGeometry(Part.LineSegment(App.Vector(-37.5, -15, 0), App.Vector(-33.8, -15, 0)), False)
sketch13.addGeometry(Part.ArcOfCircle(Part.Circle(App.Vector(0, 0, 0), App.Vector(0, 0, 1), 37), math.radians(156), math.radians(204)), False)
sketch13.addConstraint(Sketcher.Constraint("Coincident", 0, 2, 1, 1))
sketch13.addConstraint(Sketcher.Constraint("Coincident", 1, 2, 2, 1))
sketch13.addConstraint(Sketcher.Constraint("Coincident", 2, 2, 3, 2))
sketch13.addConstraint(Sketcher.Constraint("Coincident", 3, 1, 0, 1))
sketch13.addConstraint(Sketcher.Constraint("Horizontal", 0))
sketch13.addConstraint(Sketcher.Constraint("Vertical", 1))
sketch13.addConstraint(Sketcher.Constraint("Horizontal", 2))
sketch13.addConstraint(Sketcher.Constraint("Coincident", 3, 3, -1, 1))
sketch13.addConstraint(Sketcher.Constraint("Vertical", 2, 2, 3, 1))
sketch13.addConstraint(Sketcher.Constraint("Radius", 3, Q("37 mm")))
sketch13.addConstraint(Sketcher.Constraint("DistanceY", 1, 2, 1, 1, Q("30 mm")))
sketch13.addConstraint(Sketcher.Constraint("DistanceX", 0, 2, -1, 1, Q("37.5 mm")))
sketch13.setExpression("Constraints[9]", "Params.sketch13_radius")
sketch13.setExpression("Constraints[10]", "Params.sketch13_height")
pad13 = doc.addObject("PartDesign::Pad", "Pad012")
body.addObject(pad13)
pad13.Profile = sketch13
pad13.setExpression("Length", "Params.pad13_length")
pad13.Reversed = True

sketch14 = doc.addObject("Sketcher::SketchObject", "Sketch013")
body.addObject(sketch14)
sketch14.AttachmentSupport = (doc.YZ_Plane, [""])
sketch14.MapMode = "FlatFace"
sketch14.AttachmentOffset = App.Placement(App.Vector(0, 0, -21.9), App.Rotation())
sketch14.addGeometry(Part.LineSegment(App.Vector(31.7, 20, 0), App.Vector(58.2, 49.8, 0)), False)
sketch14.addGeometry(Part.ArcOfCircle(Part.Circle(App.Vector(50.7, 56.5, 0), App.Vector(0, 0, 1), 10), math.radians(-42), math.radians(121)), False)
sketch14.addGeometry(Part.LineSegment(App.Vector(45.5, 65, 0), App.Vector(0, 37.5, 0)), False)
sketch14.addGeometry(Part.ArcOfCircle(Part.Circle(App.Vector(0, 0, 0), App.Vector(0, 0, 1), 37.5), math.radians(32), math.radians(90)), False)
sketch14.addGeometry(Part.Circle(App.Vector(50.7, 56.5, 0), App.Vector(0, 0, 1), 3), False)
sketch14.addConstraint(Sketcher.Constraint("Tangent", 0, 2, 1, 1))
sketch14.addConstraint(Sketcher.Constraint("Tangent", 1, 2, 2, 1))
sketch14.addConstraint(Sketcher.Constraint("Coincident", 2, 2, 3, 2))
sketch14.addConstraint(Sketcher.Constraint("Coincident", 3, 1, 0, 1))
sketch14.addConstraint(Sketcher.Constraint("Coincident", 3, 3, -1, 1))
sketch14.addConstraint(Sketcher.Constraint("Coincident", 4, 3, 1, 3))
sketch14.addConstraint(Sketcher.Constraint("PointOnObject", 2, 2, -2))
sketch14.addConstraint(Sketcher.Constraint("Diameter", 4, Q("6 mm")))
sketch14.addConstraint(Sketcher.Constraint("Radius", 1, Q("10 mm")))
sketch14.addConstraint(Sketcher.Constraint("Radius", 3, Q("37.5 mm")))
sketch14.addConstraint(Sketcher.Constraint("DistanceY", -1, 1, 3, 1, Q("20 mm")))
sketch14.addConstraint(Sketcher.Constraint("DistanceX", -1, 1, 1, 3, Q("50.665609 mm")))
sketch14.addConstraint(Sketcher.Constraint("DistanceY", -1, 1, 0, 2, Q("49.846569 mm")))
sketch14.setExpression("Constraints[7]", "Params.sketch14_diameter")
sketch14.setExpression("Constraints[8]", "Params.sketch14_radius")
sketch14.setExpression("Constraints[9]", "Params.sketch14_radius2")
pad14 = doc.addObject("PartDesign::Pad", "Pad013")
body.addObject(pad14)
pad14.Profile = sketch14
pad14.setExpression("Length", "Params.pad14_length")
pad14.Reversed = True
body6 = doc.addObject("PartDesign::Body", "Body005")

sketch15 = doc.addObject("Sketcher::SketchObject", "Sketch014")
body6.addObject(sketch15)
sketch15.AttachmentSupport = (doc.getObject("XZ_Plane005"), [""])
sketch15.MapMode = "FlatFace"
sketch15.addGeometry(Part.LineSegment(App.Vector(-34, -38, 0), App.Vector(34, -38, 0)), False)
sketch15.addGeometry(Part.LineSegment(App.Vector(34, -38, 0), App.Vector(36, -76, 0)), False)
sketch15.addGeometry(Part.ArcOfCircle(Part.Circle(App.Vector(21, -76, 0), App.Vector(0, 0, 1), 15), math.radians(-138), math.radians(2)), False)
sketch15.addGeometry(Part.LineSegment(App.Vector(9, -86, 0), App.Vector(-34, -38, 0)), False)
sketch15.addGeometry(Part.Circle(App.Vector(21, -76, 0), App.Vector(0, 0, 1), 5), False)
sketch15.addConstraint(Sketcher.Constraint("Coincident", 0, 2, 1, 1))
sketch15.addConstraint(Sketcher.Constraint("Tangent", 1, 2, 2, 2))
sketch15.addConstraint(Sketcher.Constraint("Tangent", 2, 1, 3, 1))
sketch15.addConstraint(Sketcher.Constraint("Coincident", 3, 2, 0, 1))
sketch15.addConstraint(Sketcher.Constraint("Horizontal", 0))
sketch15.addConstraint(Sketcher.Constraint("Coincident", 4, 3, 2, 3))
sketch15.addConstraint(Sketcher.Constraint("Radius", 2, Q("15 mm")))
sketch15.addConstraint(Sketcher.Constraint("Diameter", 4, Q("10.1 mm")))
sketch15.addConstraint(Sketcher.Constraint("DistanceX", 0, 1, 0, 2, Q("69 mm")))
sketch15.addConstraint(Sketcher.Constraint("DistanceX", -1, 1, 0, 2, Q("34.5 mm")))
sketch15.addConstraint(Sketcher.Constraint("DistanceY", 0, 2, -1, 1, Q("37.5 mm")))
sketch15.addConstraint(Sketcher.Constraint("Distance", 3, Q("65.634598 mm")))
sketch15.addConstraint(Sketcher.Constraint("Distance", 1, Q("38.387592 mm")))
sketch15.setExpression("Constraints[6]", "Params.sketch15_radius")
sketch15.setExpression("Constraints[7]", "Params.sketch15_diameter")
sketch15.setExpression("Constraints[8]", "Params.sketch15_width")
pad15 = doc.addObject("PartDesign::Pad", "Pad014")
body6.addObject(pad15)
pad15.Profile = sketch15
pad15.setExpression("Length", "Params.pad15_length")
pad15.Midplane = True

doc.recompute()
